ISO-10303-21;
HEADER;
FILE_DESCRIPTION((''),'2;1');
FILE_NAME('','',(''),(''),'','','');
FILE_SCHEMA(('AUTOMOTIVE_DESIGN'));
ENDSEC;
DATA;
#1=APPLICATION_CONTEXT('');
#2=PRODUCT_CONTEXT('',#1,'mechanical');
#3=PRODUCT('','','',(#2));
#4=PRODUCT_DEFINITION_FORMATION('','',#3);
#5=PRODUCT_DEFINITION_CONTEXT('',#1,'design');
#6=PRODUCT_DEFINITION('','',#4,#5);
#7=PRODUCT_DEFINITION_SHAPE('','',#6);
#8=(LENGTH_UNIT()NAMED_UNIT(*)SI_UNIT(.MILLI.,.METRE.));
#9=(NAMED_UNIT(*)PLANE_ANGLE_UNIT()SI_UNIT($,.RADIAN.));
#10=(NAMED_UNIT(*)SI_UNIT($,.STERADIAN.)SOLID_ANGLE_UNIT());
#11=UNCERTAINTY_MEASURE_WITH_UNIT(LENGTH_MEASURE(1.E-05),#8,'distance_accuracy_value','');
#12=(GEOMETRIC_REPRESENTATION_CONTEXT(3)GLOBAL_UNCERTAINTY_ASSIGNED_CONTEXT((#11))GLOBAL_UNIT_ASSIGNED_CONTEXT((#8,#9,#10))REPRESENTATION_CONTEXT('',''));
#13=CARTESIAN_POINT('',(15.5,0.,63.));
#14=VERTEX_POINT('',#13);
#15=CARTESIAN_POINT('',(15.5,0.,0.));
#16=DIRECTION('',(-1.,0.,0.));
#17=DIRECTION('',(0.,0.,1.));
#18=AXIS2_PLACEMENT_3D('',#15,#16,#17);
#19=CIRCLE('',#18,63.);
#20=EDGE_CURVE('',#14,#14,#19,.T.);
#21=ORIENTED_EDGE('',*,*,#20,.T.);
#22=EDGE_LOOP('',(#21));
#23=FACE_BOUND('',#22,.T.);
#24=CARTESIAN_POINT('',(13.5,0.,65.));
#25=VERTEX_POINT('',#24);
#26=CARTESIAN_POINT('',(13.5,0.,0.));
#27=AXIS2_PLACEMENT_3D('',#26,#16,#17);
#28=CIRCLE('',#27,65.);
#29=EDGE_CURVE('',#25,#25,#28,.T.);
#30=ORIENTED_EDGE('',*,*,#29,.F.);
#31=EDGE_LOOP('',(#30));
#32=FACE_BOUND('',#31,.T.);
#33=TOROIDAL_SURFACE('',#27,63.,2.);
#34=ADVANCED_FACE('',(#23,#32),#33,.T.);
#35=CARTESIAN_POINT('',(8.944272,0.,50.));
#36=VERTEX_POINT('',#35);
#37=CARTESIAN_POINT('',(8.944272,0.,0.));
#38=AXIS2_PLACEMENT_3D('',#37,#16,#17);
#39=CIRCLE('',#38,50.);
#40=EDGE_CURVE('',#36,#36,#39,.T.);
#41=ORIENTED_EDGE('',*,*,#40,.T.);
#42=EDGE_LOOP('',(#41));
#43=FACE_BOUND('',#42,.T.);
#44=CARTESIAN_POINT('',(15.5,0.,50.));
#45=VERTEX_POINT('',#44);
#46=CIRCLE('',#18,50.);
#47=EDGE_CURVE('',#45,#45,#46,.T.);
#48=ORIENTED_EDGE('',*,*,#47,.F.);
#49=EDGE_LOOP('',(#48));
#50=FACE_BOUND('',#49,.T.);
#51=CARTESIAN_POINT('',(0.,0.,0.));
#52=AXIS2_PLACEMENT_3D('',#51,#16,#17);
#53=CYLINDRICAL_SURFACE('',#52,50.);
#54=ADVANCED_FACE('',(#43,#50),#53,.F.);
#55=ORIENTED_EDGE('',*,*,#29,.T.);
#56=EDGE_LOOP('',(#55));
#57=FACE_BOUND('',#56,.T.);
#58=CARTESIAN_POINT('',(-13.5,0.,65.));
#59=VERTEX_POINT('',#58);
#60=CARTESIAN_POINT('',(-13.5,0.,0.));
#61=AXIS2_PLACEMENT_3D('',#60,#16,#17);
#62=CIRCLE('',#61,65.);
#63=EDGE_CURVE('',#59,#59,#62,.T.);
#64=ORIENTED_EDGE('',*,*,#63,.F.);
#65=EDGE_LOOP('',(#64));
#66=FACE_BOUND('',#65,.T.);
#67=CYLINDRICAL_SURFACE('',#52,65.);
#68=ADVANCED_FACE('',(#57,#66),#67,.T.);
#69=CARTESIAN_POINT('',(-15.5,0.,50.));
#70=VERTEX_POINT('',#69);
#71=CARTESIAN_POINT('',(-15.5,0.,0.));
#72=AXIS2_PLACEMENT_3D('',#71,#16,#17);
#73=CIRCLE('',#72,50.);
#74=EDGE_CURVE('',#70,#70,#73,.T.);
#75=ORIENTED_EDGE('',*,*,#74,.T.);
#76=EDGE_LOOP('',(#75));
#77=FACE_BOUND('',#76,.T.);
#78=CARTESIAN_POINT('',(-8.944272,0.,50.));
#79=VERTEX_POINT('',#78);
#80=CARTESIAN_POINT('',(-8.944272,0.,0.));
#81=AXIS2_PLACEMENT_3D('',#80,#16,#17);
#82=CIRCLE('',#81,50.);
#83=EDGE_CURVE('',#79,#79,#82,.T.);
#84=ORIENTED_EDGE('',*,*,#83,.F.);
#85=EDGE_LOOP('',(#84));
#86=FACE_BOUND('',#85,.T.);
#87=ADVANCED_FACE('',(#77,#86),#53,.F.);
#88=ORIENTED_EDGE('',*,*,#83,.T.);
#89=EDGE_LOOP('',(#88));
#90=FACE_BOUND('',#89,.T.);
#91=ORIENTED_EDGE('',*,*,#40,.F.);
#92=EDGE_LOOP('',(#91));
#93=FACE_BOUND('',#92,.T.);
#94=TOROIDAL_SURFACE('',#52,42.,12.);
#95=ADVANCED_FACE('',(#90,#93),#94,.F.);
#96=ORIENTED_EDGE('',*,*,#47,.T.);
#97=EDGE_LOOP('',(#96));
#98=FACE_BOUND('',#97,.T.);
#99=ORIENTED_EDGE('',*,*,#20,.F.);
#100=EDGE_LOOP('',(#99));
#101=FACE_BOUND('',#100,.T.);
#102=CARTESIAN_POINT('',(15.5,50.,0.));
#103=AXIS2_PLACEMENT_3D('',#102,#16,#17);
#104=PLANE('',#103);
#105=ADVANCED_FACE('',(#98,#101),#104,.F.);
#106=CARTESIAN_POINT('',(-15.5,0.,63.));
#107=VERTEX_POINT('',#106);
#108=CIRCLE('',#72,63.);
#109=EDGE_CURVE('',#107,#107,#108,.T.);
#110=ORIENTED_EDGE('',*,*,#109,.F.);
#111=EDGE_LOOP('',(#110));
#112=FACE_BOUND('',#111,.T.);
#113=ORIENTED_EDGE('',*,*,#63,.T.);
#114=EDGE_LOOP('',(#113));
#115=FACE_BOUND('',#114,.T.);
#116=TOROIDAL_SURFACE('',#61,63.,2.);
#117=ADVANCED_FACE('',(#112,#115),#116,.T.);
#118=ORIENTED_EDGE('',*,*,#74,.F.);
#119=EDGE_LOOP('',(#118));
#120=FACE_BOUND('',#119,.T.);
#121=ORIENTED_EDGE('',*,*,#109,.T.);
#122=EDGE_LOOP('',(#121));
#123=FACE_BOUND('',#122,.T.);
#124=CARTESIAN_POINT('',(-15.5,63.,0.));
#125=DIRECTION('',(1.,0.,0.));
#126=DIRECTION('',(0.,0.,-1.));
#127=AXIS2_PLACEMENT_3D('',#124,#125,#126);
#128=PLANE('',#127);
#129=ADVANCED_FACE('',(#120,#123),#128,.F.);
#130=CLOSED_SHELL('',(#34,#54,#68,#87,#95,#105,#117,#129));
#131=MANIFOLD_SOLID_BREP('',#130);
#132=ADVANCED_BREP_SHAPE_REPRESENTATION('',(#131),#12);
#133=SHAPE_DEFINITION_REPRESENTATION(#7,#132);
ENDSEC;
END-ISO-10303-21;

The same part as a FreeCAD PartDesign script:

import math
import FreeCAD as App
import Part
import Sketcher

doc = App.newDocument("Part")
params = doc.addObject("Spreadsheet::Sheet", "Params")
for row, (alias, value) in enumerate([
    ("sketch1_radius", "2 mm"),
    ("sketch1_radius2", "12 mm"),
    ("sketch1_width", "27 mm"),
    ("sketch1_height", "13 mm"),
    ("revolution_angle", "360 deg"),
], start=1):
    params.set(f"A{row}", alias)
    params.set(f"B{row}", "=" + value)
    params.setAlias(f"B{row}", alias)

body = doc.addObject("PartDesign::Body", "Body")

sketch1 = body.newObject("Sketcher::SketchObject", "Sketch")
sketch1.AttachmentSupport = (doc.getObject("XY_Plane"), [""])
sketch1.MapMode = "FlatFace"
sketch1.addGeometry([
    Part.LineSegment(App.Vector(13.5, 65, 0), App.Vector(-13.5, 65, 0)),
    Part.ArcOfCircle(Part.Circle(App.Vector(-13.5, 63, 0), App.Vector(0, 0, 1), 2), math.radians(90), math.radians(180)),
    Part.LineSegment(App.Vector(-15.5, 63, 0), App.Vector(-15.5, 50, 0)),
    Part.LineSegment(App.Vector(-15.5, 50, 0), App.Vector(-8.944272, 50, 0)),
    Part.ArcOfCircle(Part.Circle(App.Vector(0, 42, 0), App.Vector(0, 0, 1), 12), math.radians(41.810315), math.radians(138.189685)),
    Part.LineSegment(App.Vector(8.944272, 50, 0), App.Vector(15.5, 50, 0)),
    Part.LineSegment(App.Vector(15.5, 50, 0), App.Vector(15.5, 63, 0)),
    Part.ArcOfCircle(Part.Circle(App.Vector(13.5, 63, 0), App.Vector(0, 0, 1), 2), math.radians(0), math.radians(90)),
], False)
sketch1.addConstraint([
    Sketcher.Constraint("Tangent", 0, 2, 1, 1),
    Sketcher.Constraint("Tangent", 1, 2, 2, 1),
    Sketcher.Constraint("Coincident", 2, 2, 3, 1),
    Sketcher.Constraint("Coincident", 3, 2, 4, 2),
    Sketcher.Constraint("Coincident", 4, 1, 5, 1),
    Sketcher.Constraint("Coincident", 5, 2, 6, 1),
    Sketcher.Constraint("Tangent", 6, 2, 7, 1),
    Sketcher.Constraint("Tangent", 7, 2, 0, 1),
    Sketcher.Constraint("Horizontal", 0),
    Sketcher.Constraint("Vertical", 2),
    Sketcher.Constraint("Horizontal", 3),
    Sketcher.Constraint("Horizontal", 5),
    Sketcher.Constraint("Vertical", 6),
    Sketcher.Constraint("Equal", 1, 7),
    Sketcher.Constraint("Symmetric", 3, 2, 4, 1, -2),
    Sketcher.Constraint("Equal", 3, 5),
    Sketcher.Constraint("Radius", 1, 2.0),
    Sketcher.Constraint("Radius", 4, 12.0),
    Sketcher.Constraint("DistanceX", 0, 2, 0, 1, 27.0),
    Sketcher.Constraint("DistanceY", 2, 2, 2, 1, 13.0),
    Sketcher.Constraint("DistanceY", -1, 1, 1, 3, 63.0),
    Sketcher.Constraint("DistanceY", -1, 1, 4, 3, 42.0),
])
sketch1.setExpression("Constraints[16]", "Params.sketch1_radius")
sketch1.setExpression("Constraints[17]", "Params.sketch1_radius2")
sketch1.setExpression("Constraints[18]", "Params.sketch1_width")
sketch1.setExpression("Constraints[19]", "Params.sketch1_height")
revolution = body.newObject("PartDesign::Revolution", "Revolution")
revolution.Profile = sketch1
revolution.ReferenceAxis = (sketch1, ["H_Axis"])
revolution.setExpression("Angle", "Params.revolution_angle")

doc.recompute()
